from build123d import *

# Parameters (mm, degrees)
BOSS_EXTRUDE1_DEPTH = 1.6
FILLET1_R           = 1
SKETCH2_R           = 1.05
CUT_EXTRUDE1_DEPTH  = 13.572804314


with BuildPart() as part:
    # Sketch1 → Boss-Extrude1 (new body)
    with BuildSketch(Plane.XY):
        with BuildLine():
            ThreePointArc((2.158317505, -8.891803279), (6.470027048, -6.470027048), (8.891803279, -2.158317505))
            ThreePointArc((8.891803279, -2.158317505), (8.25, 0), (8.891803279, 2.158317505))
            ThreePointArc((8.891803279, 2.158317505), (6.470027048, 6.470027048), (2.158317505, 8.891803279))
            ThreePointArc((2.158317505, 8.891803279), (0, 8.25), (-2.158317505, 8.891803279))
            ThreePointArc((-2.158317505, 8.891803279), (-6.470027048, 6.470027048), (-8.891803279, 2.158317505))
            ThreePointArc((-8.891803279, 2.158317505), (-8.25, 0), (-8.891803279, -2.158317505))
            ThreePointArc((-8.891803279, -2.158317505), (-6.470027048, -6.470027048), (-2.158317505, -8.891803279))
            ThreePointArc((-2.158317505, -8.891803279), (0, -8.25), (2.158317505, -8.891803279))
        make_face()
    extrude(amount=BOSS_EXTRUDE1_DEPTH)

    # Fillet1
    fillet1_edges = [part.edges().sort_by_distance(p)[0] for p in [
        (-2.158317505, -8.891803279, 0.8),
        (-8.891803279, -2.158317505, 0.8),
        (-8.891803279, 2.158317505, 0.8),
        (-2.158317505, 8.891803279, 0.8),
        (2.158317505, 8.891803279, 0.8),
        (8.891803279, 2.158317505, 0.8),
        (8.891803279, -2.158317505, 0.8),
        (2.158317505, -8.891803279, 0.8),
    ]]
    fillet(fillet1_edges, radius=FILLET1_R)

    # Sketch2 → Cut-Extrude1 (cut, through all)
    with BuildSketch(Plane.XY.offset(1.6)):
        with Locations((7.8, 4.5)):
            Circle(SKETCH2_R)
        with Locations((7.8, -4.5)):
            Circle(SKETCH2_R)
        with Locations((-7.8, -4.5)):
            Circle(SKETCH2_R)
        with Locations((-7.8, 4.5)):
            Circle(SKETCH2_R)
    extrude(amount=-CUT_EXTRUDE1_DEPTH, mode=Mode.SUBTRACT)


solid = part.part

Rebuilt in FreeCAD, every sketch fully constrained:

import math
import FreeCAD as App
import Part
import Sketcher

V = App.Vector
Q = App.Units.Quantity


def edges_at(feature, points):
    """Names of the edges that pass closest to the given points."""
    edges = feature.Shape.Edges
    near = lambda p: min(range(len(edges)), key=lambda i: edges[i].distToShape(Part.Vertex(*p))[0])
    return sorted({f"Edge{near(p) + 1}" for p in points})

doc = App.newDocument("Part")
params = doc.addObject("Spreadsheet::Sheet", "Params")
for row, (alias, value) in enumerate([
    ("sketch1_radius", "9.15 mm"),
    ("sketch1_radius2", "3.95 mm"),
    ("pad1_length", "1.6 mm"),
    ("fillet_radius", "1 mm"),
    ("sketch2_diameter", "2.1 mm"),
], start=1):
    params.set(f"A{row}", alias)
    params.set(f"B{row}", "=" + value)
    params.setAlias(f"B{row}", alias)

body = doc.addObject("PartDesign::Body", "Body")

# Sketch on XY plane
sketch1 = body.newObject("Sketcher::SketchObject", "Sketch")
sketch1.AttachmentSupport = (doc.getObject("XY_Plane"), [""])
sketch1.MapMode = "FlatFace"
sketch1.addGeometry(Part.ArcOfCircle(Part.Circle(V(0, 0, 0), V(0, 0, 1), 9.2), math.radians(-76), math.radians(-14)), False)
sketch1.addGeometry(Part.ArcOfCircle(Part.Circle(V(12.2, 0, 0), V(0, 0, 1), 3.9), math.radians(147), math.radians(213)), False)
sketch1.addGeometry(Part.ArcOfCircle(Part.Circle(V(0, 0, 0), V(0, 0, 1), 9.2), math.radians(14), math.radians(76)), False)
sketch1.addGeometry(Part.ArcOfCircle(Part.Circle(V(0, 12.2, 0), V(0, 0, 1), 3.9), math.radians(-123), math.radians(-57)), False)
sketch1.addGeometry(Part.ArcOfCircle(Part.Circle(V(0, 0, 0), V(0, 0, 1), 9.2), math.radians(104), math.radians(166)), False)
sketch1.addGeometry(Part.ArcOfCircle(Part.Circle(V(-12.2, 0, 0), V(0, 0, 1), 3.9), math.radians(-33), math.radians(33)), False)
sketch1.addGeometry(Part.ArcOfCircle(Part.Circle(V(0, 0, 0), V(0, 0, 1), 9.2), math.radians(-166), math.radians(-104)), False)
sketch1.addGeometry(Part.ArcOfCircle(Part.Circle(V(0, -12.2, 0), V(0, 0, 1), 3.9), math.radians(57), math.radians(123)), False)
sketch1.addConstraint(Sketcher.Constraint("Coincident", 0, 2, 1, 2))
sketch1.addConstraint(Sketcher.Constraint("Coincident", 1, 1, 2, 1))
sketch1.addConstraint(Sketcher.Constraint("Coincident", 2, 2, 3, 2))
sketch1.addConstraint(Sketcher.Constraint("Coincident", 3, 1, 4, 1))
sketch1.addConstraint(Sketcher.Constraint("Coincident", 4, 2, 5, 2))
sketch1.addConstraint(Sketcher.Constraint("Coincident", 5, 1, 6, 1))
sketch1.addConstraint(Sketcher.Constraint("Coincident", 6, 2, 7, 2))
sketch1.addConstraint(Sketcher.Constraint("Coincident", 7, 1, 0, 1))
sketch1.addConstraint(Sketcher.Constraint("Coincident", 0, 3, -1, 1))
sketch1.addConstraint(Sketcher.Constraint("Coincident", 2, 3, -1, 1))
sketch1.addConstraint(Sketcher.Constraint("Coincident", 4, 3, -1, 1))
sketch1.addConstraint(Sketcher.Constraint("Coincident", 6, 3, -1, 1))
sketch1.addConstraint(Sketcher.Constraint("Equal", 0, 2))
sketch1.addConstraint(Sketcher.Constraint("Equal", 1, 3))
sketch1.addConstraint(Sketcher.Constraint("Equal", 2, 4))
sketch1.addConstraint(Sketcher.Constraint("Equal", 3, 5))
sketch1.addConstraint(Sketcher.Constraint("Equal", 4, 6))
sketch1.addConstraint(Sketcher.Constraint("Equal", 5, 7))
sketch1.addConstraint(Sketcher.Constraint("Symmetric", 1, 3, 5, 3, -1, 1))
sketch1.addConstraint(Sketcher.Constraint("Symmetric", 3, 3, 7, 3, -1, 1))
sketch1.addConstraint(Sketcher.Constraint("PointOnObject", 1, 3, -1))
sketch1.addConstraint(Sketcher.Constraint("PointOnObject", 3, 3, -2))
sketch1.addConstraint(Sketcher.Constraint("Radius", 0, Q("9.15 mm")))
sketch1.addConstraint(Sketcher.Constraint("Radius", 1, Q("3.95 mm")))
sketch1.addConstraint(Sketcher.Constraint("DistanceX", -1, 1, 1, 3, Q("12.2 mm")))
sketch1.addConstraint(Sketcher.Constraint("DistanceY", -1, 1, 3, 3, Q("12.2 mm")))
sketch1.setExpression("Constraints[22]", "Params.sketch1_radius")
sketch1.setExpression("Constraints[23]", "Params.sketch1_radius2")
pad1 = body.newObject("PartDesign::Pad", "Pad")
pad1.Profile = sketch1
pad1.setExpression("Length", "Params.pad1_length")
doc.recompute()

fillet = body.newObject("PartDesign::Fillet", "Fillet")
fillet.Base = (pad1, edges_at(pad1, [
    (-2.158, -8.892, 0.8),
    (-8.892, -2.158, 0.8),
    (-8.892, 2.158, 0.8),
    (-2.158, 8.892, 0.8),
    (2.158, 8.892, 0.8),
    (8.892, 2.158, 0.8),
    (8.892, -2.158, 0.8),
    (2.158, -8.892, 0.8),
]))
fillet.setExpression("Radius", "Params.fillet_radius")

# Sketch on XY plane
sketch2 = body.newObject("Sketcher::SketchObject", "Sketch001")
sketch2.AttachmentSupport = (doc.getObject("XY_Plane"), [""])
sketch2.MapMode = "FlatFace"
sketch2.AttachmentOffset = App.Placement(V(0, 0, 1.6), App.Rotation())
sketch2.addGeometry(Part.Circle(V(7.8, 4.5, 0), V(0, 0, 1), 1.1), False)
sketch2.addGeometry(Part.Circle(V(7.8, -4.5, 0), V(0, 0, 1), 1.1), False)
sketch2.addGeometry(Part.Circle(V(-7.8, -4.5, 0), V(0, 0, 1), 1.1), False)
sketch2.addGeometry(Part.Circle(V(-7.8, 4.5, 0), V(0, 0, 1), 1.1), False)
sketch2.addConstraint(Sketcher.Constraint("Equal", 0, 1))
sketch2.addConstraint(Sketcher.Constraint("Equal", 1, 2))
sketch2.addConstraint(Sketcher.Constraint("Equal", 2, 3))
sketch2.addConstraint(Sketcher.Constraint("Symmetric", 0, 3, 2, 3, -1, 1))
sketch2.addConstraint(Sketcher.Constraint("Symmetric", 1, 3, 3, 3, -1, 1))
sketch2.addConstraint(Sketcher.Constraint("Symmetric", 1, 3, 2, 3, -2))
sketch2.addConstraint(Sketcher.Constraint("Diameter", 0, Q("2.1 mm")))
sketch2.addConstraint(Sketcher.Constraint("DistanceY", 1, 3, 0, 3, Q("9 mm")))
sketch2.addConstraint(Sketcher.Constraint("DistanceX", -1, 1, 0, 3, Q("7.8 mm")))
sketch2.setExpression("Constraints[6]", "Params.sketch2_diameter")
pocket1 = body.newObject("PartDesign::Pocket", "Pocket")
pocket1.Profile = sketch2
pocket1.Type = "ThroughAll"

doc.recompute()
